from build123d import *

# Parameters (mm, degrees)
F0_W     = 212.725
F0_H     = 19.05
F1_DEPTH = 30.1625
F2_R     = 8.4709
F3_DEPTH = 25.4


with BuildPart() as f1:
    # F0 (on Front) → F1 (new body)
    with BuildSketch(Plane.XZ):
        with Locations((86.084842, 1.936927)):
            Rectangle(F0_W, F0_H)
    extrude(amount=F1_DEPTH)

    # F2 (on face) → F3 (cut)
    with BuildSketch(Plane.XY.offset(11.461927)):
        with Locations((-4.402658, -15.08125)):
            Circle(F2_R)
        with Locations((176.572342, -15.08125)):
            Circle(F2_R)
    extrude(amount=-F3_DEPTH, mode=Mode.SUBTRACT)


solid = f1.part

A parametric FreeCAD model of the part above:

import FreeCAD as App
import Part
import Sketcher
Q = App.Units.Quantity


def add_polygon(sketch, points):
    """Adds a closed chain of lines whose ends are joined by coincident constraints."""
    first, n = sketch.GeometryCount, len(points)
    for a, b in zip(points, points[1:] + points[:1]):
        sketch.addGeometry(Part.LineSegment(App.Vector(*a, 0), App.Vector(*b, 0)), False)
    for i in range(n):
        sketch.addConstraint(Sketcher.Constraint("Coincident", first + i, 2, first + (i + 1) % n, 1))

doc = App.newDocument("Part")
body = doc.addObject("PartDesign::Body", "Body")

# Sketch on XZ plane
sketch1 = doc.addObject("Sketcher::SketchObject", "Sketch")
body.addObject(sketch1)
sketch1.AttachmentSupport = (doc.XZ_Plane, [""])
sketch1.MapMode = "FlatFace"
add_polygon(sketch1, [(-20.277658, 11.461927), (-20.277658, -7.588073), (192.447342, -7.588073), (192.447342, 11.461927)])  # lines 0-3
sketch1.addConstraint([
    Sketcher.Constraint("Vertical", 0),
    Sketcher.Constraint("Horizontal", 1),
    Sketcher.Constraint("Vertical", 2),
    Sketcher.Constraint("Horizontal", 3),
    Sketcher.Constraint("DistanceY", 0, 2, 0, 1, Q("0.75 in")),
    Sketcher.Constraint("DistanceX", 1, 1, 1, 2, Q("8.375 in")),
    Sketcher.Constraint("DistanceX", -1, 1, 1, 2, Q("192.447342 mm")),
    Sketcher.Constraint("DistanceY", 0, 2, -1, 1, Q("7.588073 mm")),
])
pad1 = doc.addObject("PartDesign::Pad", "Pad")
body.addObject(pad1)
pad1.Profile = sketch1
pad1.Length = Q("1.1875 in")

# Sketch on XY plane
sketch2 = doc.addObject("Sketcher::SketchObject", "Sketch001")
body.addObject(sketch2)
sketch2.AttachmentSupport = (doc.XY_Plane, [""])
sketch2.MapMode = "FlatFace"
sketch2.AttachmentOffset = App.Placement(App.Vector(0, 0, 11.461927), App.Rotation())
sketch2.addGeometry([
    Part.Circle(App.Vector(-4.402658, -15.08125, 0), App.Vector(0, 0, 1), 8.4709),
    Part.Circle(App.Vector(176.572342, -15.08125, 0), App.Vector(0, 0, 1), 8.4709),
], False)
sketch2.addConstraint([
    Sketcher.Constraint("Equal", 0, 1),
    Sketcher.Constraint("Horizontal", 0, 3, 1, 3),
    Sketcher.Constraint("Diameter", 0, Q("0.667 in")),
    Sketcher.Constraint("DistanceY", 0, 3, -1, 1, Q("0.59375 in")),
    Sketcher.Constraint("DistanceX", 0, 3, 1, 3, Q("7.125 in")),
    Sketcher.Constraint("DistanceX", -1, 1, 1, 3, Q("176.572342 mm")),
])
pocket1 = doc.addObject("PartDesign::Pocket", "Pocket")
body.addObject(pocket1)
pocket1.Profile = sketch2
pocket1.Length = Q("1 in")

doc.recompute()
